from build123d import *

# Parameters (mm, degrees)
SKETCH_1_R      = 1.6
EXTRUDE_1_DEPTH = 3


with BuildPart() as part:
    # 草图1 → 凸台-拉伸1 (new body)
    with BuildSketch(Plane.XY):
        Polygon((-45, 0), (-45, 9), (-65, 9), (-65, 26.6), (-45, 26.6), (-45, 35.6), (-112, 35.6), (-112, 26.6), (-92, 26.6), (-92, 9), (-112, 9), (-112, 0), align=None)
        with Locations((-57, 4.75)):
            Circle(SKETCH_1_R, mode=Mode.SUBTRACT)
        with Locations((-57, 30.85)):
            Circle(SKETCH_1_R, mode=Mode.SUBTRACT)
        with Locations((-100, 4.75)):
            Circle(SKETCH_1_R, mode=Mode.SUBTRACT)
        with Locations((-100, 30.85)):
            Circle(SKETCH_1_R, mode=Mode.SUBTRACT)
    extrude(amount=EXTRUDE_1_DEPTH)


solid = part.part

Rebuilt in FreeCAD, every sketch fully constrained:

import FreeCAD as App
import Part
import Sketcher
Q = App.Units.Quantity

doc = App.newDocument("Part")
body = doc.addObject("PartDesign::Body", "Body")

# Sketch on XY plane
sketch1 = body.newObject("Sketcher::SketchObject", "Sketch")
sketch1.AttachmentSupport = (doc.getObject("XY_Plane"), [""])
sketch1.MapMode = "FlatFace"
sketch1.addGeometry([
    Part.LineSegment(App.Vector(-45, 0, 0), App.Vector(-45, 9, 0)),  # 0
    Part.LineSegment(App.Vector(-45, 9, 0), App.Vector(-65, 9, 0)),  # 1
    Part.LineSegment(App.Vector(-65, 9, 0), App.Vector(-65, 26.6, 0)),  # 2
    Part.LineSegment(App.Vector(-65, 26.6, 0), App.Vector(-45, 26.6, 0)),  # 3
    Part.LineSegment(App.Vector(-45, 26.6, 0), App.Vector(-45, 35.6, 0)),  # 4
    Part.LineSegment(App.Vector(-45, 35.6, 0), App.Vector(-112, 35.6, 0)),  # 5
    Part.LineSegment(App.Vector(-112, 35.6, 0), App.Vector(-112, 26.6, 0)),  # 6
    Part.LineSegment(App.Vector(-112, 26.6, 0), App.Vector(-92, 26.6, 0)),  # 7
    Part.LineSegment(App.Vector(-92, 26.6, 0), App.Vector(-92, 9, 0)),  # 8
    Part.LineSegment(App.Vector(-92, 9, 0), App.Vector(-112, 9, 0)),  # 9
    Part.LineSegment(App.Vector(-112, 9, 0), App.Vector(-112, 0, 0)),  # 10
    Part.LineSegment(App.Vector(-112, 0, 0), App.Vector(-45, 0, 0)),  # 11
    Part.Circle(App.Vector(-100, 4.8, 0), App.Vector(0, 0, 1), 1.6),  # 12
    Part.Circle(App.Vector(-57, 4.8, 0), App.Vector(0, 0, 1), 1.6),  # 13
    Part.Circle(App.Vector(-100, 30.9, 0), App.Vector(0, 0, 1), 1.6),  # 14
    Part.Circle(App.Vector(-57, 30.9, 0), App.Vector(0, 0, 1), 1.6),  # 15
], False)
sketch1.addConstraint([
    Sketcher.Constraint("Coincident", 0, 2, 1, 1),
    Sketcher.Constraint("Coincident", 1, 2, 2, 1),
    Sketcher.Constraint("Coincident", 2, 2, 3, 1),
    Sketcher.Constraint("Coincident", 3, 2, 4, 1),
    Sketcher.Constraint("Coincident", 4, 2, 5, 1),
    Sketcher.Constraint("Coincident", 5, 2, 6, 1),
    Sketcher.Constraint("Coincident", 6, 2, 7, 1),
    Sketcher.Constraint("Coincident", 7, 2, 8, 1),
    Sketcher.Constraint("Coincident", 8, 2, 9, 1),
    Sketcher.Constraint("Coincident", 9, 2, 10, 1),
    Sketcher.Constraint("Coincident", 10, 2, 11, 1),
    Sketcher.Constraint("Coincident", 11, 2, 0, 1),
    Sketcher.Constraint("Vertical", 0),
    Sketcher.Constraint("Horizontal", 1),
    Sketcher.Constraint("Vertical", 2),
    Sketcher.Constraint("Horizontal", 3),
    Sketcher.Constraint("Vertical", 4),
    Sketcher.Constraint("Horizontal", 5),
    Sketcher.Constraint("Vertical", 6),
    Sketcher.Constraint("Horizontal", 7),
    Sketcher.Constraint("Vertical", 8),
    Sketcher.Constraint("Horizontal", 9),
    Sketcher.Constraint("Vertical", 10),
    Sketcher.Constraint("Horizontal", 11),
    Sketcher.Constraint("Equal", 12, 13),
    Sketcher.Constraint("Equal", 13, 14),
    Sketcher.Constraint("Equal", 14, 15),
    Sketcher.Constraint("PointOnObject", 10, 2, -1),
    Sketcher.Constraint("Horizontal", 12, 3, 13, 3),
    Sketcher.Constraint("Horizontal", 14, 3, 15, 3),
    Sketcher.Constraint("Horizontal", 3, 2, 6, 2),
    Sketcher.Constraint("Horizontal", 1, 2, 8, 2),
    Sketcher.Constraint("Vertical", 12, 3, 14, 3),
    Sketcher.Constraint("Vertical", 13, 3, 15, 3),
    Sketcher.Constraint("Vertical", 0, 2, 3, 2),
    Sketcher.Constraint("Vertical", 6, 2, 9, 2),
    Sketcher.Constraint("Equal", 3, 7),
    Sketcher.Constraint("Equal", 0, 4),
    Sketcher.Constraint("Diameter", 12, Q("3.2 mm")),
    Sketcher.Constraint("DistanceX", 1, 2, 1, 1, Q("20 mm")),
    Sketcher.Constraint("DistanceX", 5, 2, 5, 1, Q("67 mm")),
    Sketcher.Constraint("DistanceY", 0, 1, 0, 2, Q("9 mm")),
    Sketcher.Constraint("DistanceY", 2, 1, 2, 2, Q("17.6 mm")),
    Sketcher.Constraint("DistanceX", 12, 3, -1, 1, Q("100 mm")),
    Sketcher.Constraint("DistanceX", 13, 3, -1, 1, Q("57 mm")),
    Sketcher.Constraint("DistanceX", 0, 2, -1, 1, Q("45 mm")),
    Sketcher.Constraint("DistanceY", 12, 3, 14, 3, Q("26.1 mm")),
    Sketcher.Constraint("DistanceY", -1, 1, 12, 3, Q("4.75 mm")),
])
pad1 = body.newObject("PartDesign::Pad", "Pad")
pad1.Profile = sketch1
pad1.Length = 3

doc.recompute()
